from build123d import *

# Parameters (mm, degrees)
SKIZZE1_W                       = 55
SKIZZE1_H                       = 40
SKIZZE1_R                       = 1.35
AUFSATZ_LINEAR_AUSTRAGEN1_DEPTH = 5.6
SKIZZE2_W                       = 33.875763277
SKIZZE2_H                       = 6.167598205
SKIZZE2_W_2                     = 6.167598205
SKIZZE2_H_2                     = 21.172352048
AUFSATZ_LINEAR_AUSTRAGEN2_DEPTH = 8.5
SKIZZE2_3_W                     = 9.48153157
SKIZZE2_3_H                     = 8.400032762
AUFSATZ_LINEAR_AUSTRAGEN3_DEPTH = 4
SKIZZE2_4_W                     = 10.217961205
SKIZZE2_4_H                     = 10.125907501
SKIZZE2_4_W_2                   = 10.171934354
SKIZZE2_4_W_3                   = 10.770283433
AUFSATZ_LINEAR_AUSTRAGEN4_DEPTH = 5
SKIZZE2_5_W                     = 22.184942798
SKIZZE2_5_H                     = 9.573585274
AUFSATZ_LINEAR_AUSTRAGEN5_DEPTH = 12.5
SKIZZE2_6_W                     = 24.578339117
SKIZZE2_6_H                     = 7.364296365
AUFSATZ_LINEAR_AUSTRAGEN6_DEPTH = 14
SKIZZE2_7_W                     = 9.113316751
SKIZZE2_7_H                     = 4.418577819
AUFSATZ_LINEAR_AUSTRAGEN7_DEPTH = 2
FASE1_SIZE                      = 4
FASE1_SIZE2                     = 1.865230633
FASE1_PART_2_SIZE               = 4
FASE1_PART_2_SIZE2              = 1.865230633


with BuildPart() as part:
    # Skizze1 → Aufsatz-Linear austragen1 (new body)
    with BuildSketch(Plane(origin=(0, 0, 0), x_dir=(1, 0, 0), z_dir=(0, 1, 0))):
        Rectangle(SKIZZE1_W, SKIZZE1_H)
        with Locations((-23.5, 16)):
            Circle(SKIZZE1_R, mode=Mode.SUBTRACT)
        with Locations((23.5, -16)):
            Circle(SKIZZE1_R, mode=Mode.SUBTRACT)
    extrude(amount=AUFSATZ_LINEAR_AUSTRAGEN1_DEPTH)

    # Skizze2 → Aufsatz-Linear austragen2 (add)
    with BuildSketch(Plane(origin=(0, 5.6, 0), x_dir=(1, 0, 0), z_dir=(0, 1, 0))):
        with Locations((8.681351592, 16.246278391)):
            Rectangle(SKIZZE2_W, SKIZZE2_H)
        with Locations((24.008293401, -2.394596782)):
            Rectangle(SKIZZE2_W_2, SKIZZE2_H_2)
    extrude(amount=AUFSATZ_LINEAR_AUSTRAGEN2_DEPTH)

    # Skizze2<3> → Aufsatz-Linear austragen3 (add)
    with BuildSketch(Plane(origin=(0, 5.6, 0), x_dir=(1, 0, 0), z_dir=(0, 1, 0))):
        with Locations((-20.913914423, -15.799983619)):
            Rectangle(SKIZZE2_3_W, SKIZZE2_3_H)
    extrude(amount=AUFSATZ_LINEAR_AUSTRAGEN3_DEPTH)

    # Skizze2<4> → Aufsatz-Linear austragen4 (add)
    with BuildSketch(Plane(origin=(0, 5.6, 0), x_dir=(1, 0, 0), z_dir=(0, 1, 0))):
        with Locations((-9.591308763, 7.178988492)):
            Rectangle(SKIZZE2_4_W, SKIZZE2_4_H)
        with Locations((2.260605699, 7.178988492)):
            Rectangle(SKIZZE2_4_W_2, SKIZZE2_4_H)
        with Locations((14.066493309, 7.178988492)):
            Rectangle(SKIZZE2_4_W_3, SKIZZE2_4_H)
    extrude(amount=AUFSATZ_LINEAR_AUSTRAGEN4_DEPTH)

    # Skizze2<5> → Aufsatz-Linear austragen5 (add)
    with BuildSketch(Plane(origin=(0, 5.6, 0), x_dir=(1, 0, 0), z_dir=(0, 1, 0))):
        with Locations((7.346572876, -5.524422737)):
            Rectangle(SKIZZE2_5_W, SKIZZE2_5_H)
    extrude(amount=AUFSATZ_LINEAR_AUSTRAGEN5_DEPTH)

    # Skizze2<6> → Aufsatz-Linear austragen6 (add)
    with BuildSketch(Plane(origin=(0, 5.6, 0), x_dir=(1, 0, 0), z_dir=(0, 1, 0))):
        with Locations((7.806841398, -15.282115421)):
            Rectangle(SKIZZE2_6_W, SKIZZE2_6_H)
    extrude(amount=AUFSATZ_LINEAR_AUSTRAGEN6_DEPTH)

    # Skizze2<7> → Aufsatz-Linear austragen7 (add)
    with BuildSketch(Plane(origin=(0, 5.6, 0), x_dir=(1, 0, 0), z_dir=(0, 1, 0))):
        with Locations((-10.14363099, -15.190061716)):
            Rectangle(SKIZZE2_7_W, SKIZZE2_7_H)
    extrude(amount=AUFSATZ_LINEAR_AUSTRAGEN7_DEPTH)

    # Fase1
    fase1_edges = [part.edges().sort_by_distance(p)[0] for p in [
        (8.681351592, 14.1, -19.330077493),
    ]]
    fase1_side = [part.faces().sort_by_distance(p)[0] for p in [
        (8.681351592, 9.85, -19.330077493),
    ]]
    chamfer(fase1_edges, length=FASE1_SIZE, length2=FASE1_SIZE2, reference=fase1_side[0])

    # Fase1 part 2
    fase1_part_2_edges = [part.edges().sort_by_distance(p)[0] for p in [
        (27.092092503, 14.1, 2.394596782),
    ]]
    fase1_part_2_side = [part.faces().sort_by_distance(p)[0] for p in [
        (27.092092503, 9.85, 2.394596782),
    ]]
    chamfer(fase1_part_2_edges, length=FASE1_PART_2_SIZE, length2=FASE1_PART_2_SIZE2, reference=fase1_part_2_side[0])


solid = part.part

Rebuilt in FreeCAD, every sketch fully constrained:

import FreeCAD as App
import Part
import Sketcher


def edges_at(feature, points):
    """Names of the edges that pass closest to the given points."""
    edges = feature.Shape.Edges
    near = lambda p: min(range(len(edges)), key=lambda i: edges[i].distToShape(Part.Vertex(*p))[0])
    return sorted({f"Edge{near(p) + 1}" for p in points})

doc = App.newDocument("Part")
params = doc.addObject("Spreadsheet::Sheet", "Params")
for row, (alias, value) in enumerate([
    ("sketch1_diameter", "2.7 mm"),
    ("sketch1_width", "55 mm"),
    ("sketch1_height", "40 mm"),
    ("pad1_length", "5.6 mm"),
    ("pad2_length", "8.5 mm"),
    ("pad3_length", "4 mm"),
    ("pad4_length", "5 mm"),
    ("pad5_length", "12.5 mm"),
    ("pad6_length", "14 mm"),
    ("pad7_length", "2 mm"),
    ("chamfer_size", "4 mm"),
    ("chamfer_size2", "1.865231 mm"),
    ("chamfer2_size", "4 mm"),
    ("chamfer2_size2", "1.865231 mm"),
], start=1):
    params.set(f"A{row}", alias)
    params.set(f"B{row}", "=" + value)
    params.setAlias(f"B{row}", alias)

body = doc.addObject("PartDesign::Body", "Body")

# Sketch on XZ plane
sketch1 = doc.addObject("Sketcher::SketchObject", "Sketch")
body.addObject(sketch1)
sketch1.AttachmentSupport = (doc.XZ_Plane, [""])
sketch1.MapMode = "FlatFace"
sketch1.addGeometry([
    Part.LineSegment(App.Vector(-27.5, -20, 0), App.Vector(-27.5, 20, 0)),  # 0
    Part.LineSegment(App.Vector(-27.5, 20, 0), App.Vector(27.5, 20, 0)),  # 1
    Part.LineSegment(App.Vector(27.5, 20, 0), App.Vector(27.5, -20, 0)),  # 2
    Part.LineSegment(App.Vector(27.5, -20, 0), App.Vector(-27.5, -20, 0)),  # 3
    Part.Circle(App.Vector(23.5, 16, 0), App.Vector(0, 0, 1), 1.35),  # 4
    Part.Circle(App.Vector(-23.5, -16, 0), App.Vector(0, 0, 1), 1.35),  # 5
], False)
sketch1.addConstraint([
    Sketcher.Constraint("Coincident", 0, 2, 1, 1),
    Sketcher.Constraint("Coincident", 1, 2, 2, 1),
    Sketcher.Constraint("Coincident", 2, 2, 3, 1),
    Sketcher.Constraint("Coincident", 3, 2, 0, 1),
    Sketcher.Constraint("Vertical", 0),
    Sketcher.Constraint("Horizontal", 1),
    Sketcher.Constraint("Vertical", 2),
    Sketcher.Constraint("Horizontal", 3),
    Sketcher.Constraint("Equal", 4, 5),
    Sketcher.Constraint("Symmetric", 4, 3, 5, 3, -1, 1),
    Sketcher.Constraint("Symmetric", 0, 2, 2, 2, -1, 1),
    Sketcher.Constraint("Diameter", 4, 2.7),
    Sketcher.Constraint("DistanceX", 1, 1, 1, 2, 55.0),
    Sketcher.Constraint("DistanceY", 0, 1, 0, 2, 40.0),
    Sketcher.Constraint("DistanceY", -1, 1, 4, 3, 16.0),
    Sketcher.Constraint("DistanceX", 5, 3, 4, 3, 47.0),
])
sketch1.setExpression("Constraints[11]", "Params.sketch1_diameter")
sketch1.setExpression("Constraints[12]", "Params.sketch1_width")
sketch1.setExpression("Constraints[13]", "Params.sketch1_height")
pad1 = doc.addObject("PartDesign::Pad", "Pad")
body.addObject(pad1)
pad1.Profile = sketch1
pad1.setExpression("Length", "Params.pad1_length")
pad1.Reversed = True

# Sketch on XZ plane
sketch2 = doc.addObject("Sketcher::SketchObject", "Sketch001")
body.addObject(sketch2)
sketch2.AttachmentSupport = (doc.XZ_Plane, [""])
sketch2.MapMode = "FlatFace"
sketch2.AttachmentOffset = App.Placement(App.Vector(0, 0, -5.6), App.Rotation())
sketch2.addGeometry([
    Part.LineSegment(App.Vector(-8.25653, -19.330077, 0), App.Vector(-8.25653, -13.162479, 0)),  # 0
    Part.LineSegment(App.Vector(-8.25653, -13.162479, 0), App.Vector(25.619233, -13.162479, 0)),  # 1
    Part.LineSegment(App.Vector(25.619233, -13.162479, 0), App.Vector(25.619233, -19.330077, 0)),  # 2
    Part.LineSegment(App.Vector(25.619233, -19.330077, 0), App.Vector(-8.25653, -19.330077, 0)),  # 3
    Part.LineSegment(App.Vector(20.924494, -8.191579, 0), App.Vector(20.924494, 12.980773, 0)),  # 4
    Part.LineSegment(App.Vector(20.924494, 12.980773, 0), App.Vector(27.092093, 12.980773, 0)),  # 5
    Part.LineSegment(App.Vector(27.092093, 12.980773, 0), App.Vector(27.092093, -8.191579, 0)),  # 6
    Part.LineSegment(App.Vector(27.092093, -8.191579, 0), App.Vector(20.924494, -8.191579, 0)),  # 7
], False)
sketch2.addConstraint([
    Sketcher.Constraint("Coincident", 0, 2, 1, 1),
    Sketcher.Constraint("Coincident", 1, 2, 2, 1),
    Sketcher.Constraint("Coincident", 2, 2, 3, 1),
    Sketcher.Constraint("Coincident", 3, 2, 0, 1),
    Sketcher.Constraint("Coincident", 4, 2, 5, 1),
    Sketcher.Constraint("Coincident", 5, 2, 6, 1),
    Sketcher.Constraint("Coincident", 6, 2, 7, 1),
    Sketcher.Constraint("Coincident", 7, 2, 4, 1),
    Sketcher.Constraint("Vertical", 0),
    Sketcher.Constraint("Horizontal", 1),
    Sketcher.Constraint("Vertical", 2),
    Sketcher.Constraint("Horizontal", 3),
    Sketcher.Constraint("Vertical", 4),
    Sketcher.Constraint("Horizontal", 5),
    Sketcher.Constraint("Vertical", 6),
    Sketcher.Constraint("Horizontal", 7),
    Sketcher.Constraint("Equal", 7, 0),
    Sketcher.Constraint("DistanceX", 5, 1, 5, 2, 6.167598),
    Sketcher.Constraint("DistanceY", 1, 2, 6, 2, 4.9709),
    Sketcher.Constraint("DistanceX", 1, 1, 1, 2, 33.875763),
    Sketcher.Constraint("DistanceY", 4, 1, 4, 2, 21.172352),
    Sketcher.Constraint("DistanceX", 0, 2, -1, 1, 8.25653),
    Sketcher.Constraint("DistanceY", 0, 2, -1, 1, 13.162479),
    Sketcher.Constraint("DistanceX", 4, 2, 1, 2, 4.694739),
])
pad2 = doc.addObject("PartDesign::Pad", "Pad001")
body.addObject(pad2)
pad2.Profile = sketch2
pad2.setExpression("Length", "Params.pad2_length")
pad2.Reversed = True

# Sketch on XZ plane
sketch3 = doc.addObject("Sketcher::SketchObject", "Sketch002")
body.addObject(sketch3)
sketch3.AttachmentSupport = (doc.XZ_Plane, [""])
sketch3.MapMode = "FlatFace"
sketch3.AttachmentOffset = App.Placement(App.Vector(0, 0, -5.6), App.Rotation())
sketch3.addGeometry([
    Part.LineSegment(App.Vector(-25.65468, 11.599967, 0), App.Vector(-25.65468, 20, 0)),
    Part.LineSegment(App.Vector(-25.65468, 20, 0), App.Vector(-16.173149, 20, 0)),
    Part.LineSegment(App.Vector(-16.173149, 20, 0), App.Vector(-16.173149, 11.599967, 0)),
    Part.LineSegment(App.Vector(-16.173149, 11.599967, 0), App.Vector(-25.65468, 11.599967, 0)),
], False)
sketch3.addConstraint([
    Sketcher.Constraint("Coincident", 0, 2, 1, 1),
    Sketcher.Constraint("Coincident", 1, 2, 2, 1),
    Sketcher.Constraint("Coincident", 2, 2, 3, 1),
    Sketcher.Constraint("Coincident", 3, 2, 0, 1),
    Sketcher.Constraint("Vertical", 0),
    Sketcher.Constraint("Horizontal", 1),
    Sketcher.Constraint("Vertical", 2),
    Sketcher.Constraint("Horizontal", 3),
    Sketcher.Constraint("DistanceY", -1, 1, 0, 2, 20.0),
    Sketcher.Constraint("DistanceX", 1, 1, 1, 2, 9.481532),
    Sketcher.Constraint("DistanceY", 0, 1, 0, 2, 8.400033),
    Sketcher.Constraint("DistanceX", 0, 2, -1, 1, 25.65468),
])
pad3 = doc.addObject("PartDesign::Pad", "Pad002")
body.addObject(pad3)
pad3.Profile = sketch3
pad3.setExpression("Length", "Params.pad3_length")
pad3.Reversed = True

# Sketch on XZ plane
sketch4 = doc.addObject("Sketcher::SketchObject", "Sketch003")
body.addObject(sketch4)
sketch4.AttachmentSupport = (doc.XZ_Plane, [""])
sketch4.MapMode = "FlatFace"
sketch4.AttachmentOffset = App.Placement(App.Vector(0, 0, -5.6), App.Rotation())
sketch4.addGeometry([
    Part.LineSegment(App.Vector(-14.700289, -12.241942, 0), App.Vector(-14.700289, -2.116035, 0)),  # 0
    Part.LineSegment(App.Vector(-14.700289, -2.116035, 0), App.Vector(-4.482328, -2.116035, 0)),  # 1
    Part.LineSegment(App.Vector(-4.482328, -2.116035, 0), App.Vector(-4.482328, -12.241942, 0)),  # 2
    Part.LineSegment(App.Vector(-4.482328, -12.241942, 0), App.Vector(-14.700289, -12.241942, 0)),  # 3
    Part.LineSegment(App.Vector(-2.825361, -12.241942, 0), App.Vector(-2.825361, -2.116035, 0)),  # 4
    Part.LineSegment(App.Vector(-2.825361, -2.116035, 0), App.Vector(7.346573, -2.116035, 0)),  # 5
    Part.LineSegment(App.Vector(7.346573, -2.116035, 0), App.Vector(7.346573, -12.241942, 0)),  # 6
    Part.LineSegment(App.Vector(7.346573, -12.241942, 0), App.Vector(-2.825361, -12.241942, 0)),  # 7
    Part.LineSegment(App.Vector(8.681352, -12.241942, 0), App.Vector(8.681352, -2.116035, 0)),  # 8
    Part.LineSegment(App.Vector(8.681352, -2.116035, 0), App.Vector(19.451635, -2.116035, 0)),  # 9
    Part.LineSegment(App.Vector(19.451635, -2.116035, 0), App.Vector(19.451635, -12.241942, 0)),  # 10
    Part.LineSegment(App.Vector(19.451635, -12.241942, 0), App.Vector(8.681352, -12.241942, 0)),  # 11
], False)
sketch4.addConstraint([
    Sketcher.Constraint("Coincident", 0, 2, 1, 1),
    Sketcher.Constraint("Coincident", 1, 2, 2, 1),
    Sketcher.Constraint("Coincident", 2, 2, 3, 1),
    Sketcher.Constraint("Coincident", 3, 2, 0, 1),
    Sketcher.Constraint("Coincident", 4, 2, 5, 1),
    Sketcher.Constraint("Coincident", 5, 2, 6, 1),
    Sketcher.Constraint("Coincident", 6, 2, 7, 1),
    Sketcher.Constraint("Coincident", 7, 2, 4, 1),
    Sketcher.Constraint("Coincident", 8, 2, 9, 1),
    Sketcher.Constraint("Coincident", 9, 2, 10, 1),
    Sketcher.Constraint("Coincident", 10, 2, 11, 1),
    Sketcher.Constraint("Coincident", 11, 2, 8, 1),
    Sketcher.Constraint("Vertical", 0),
    Sketcher.Constraint("Horizontal", 1),
    Sketcher.Constraint("Vertical", 2),
    Sketcher.Constraint("Horizontal", 3),
    Sketcher.Constraint("Vertical", 4),
    Sketcher.Constraint("Horizontal", 5),
    Sketcher.Constraint("Vertical", 6),
    Sketcher.Constraint("Horizontal", 7),
    Sketcher.Constraint("Vertical", 8),
    Sketcher.Constraint("Horizontal", 9),
    Sketcher.Constraint("Vertical", 10),
    Sketcher.Constraint("Horizontal", 11),
    Sketcher.Constraint("Horizontal", 1, 2, 4, 2),
    Sketcher.Constraint("Horizontal", 3, 2, 6, 2),
    Sketcher.Constraint("Horizontal", 5, 2, 8, 2),
    Sketcher.Constraint("Horizontal", 7, 2, 10, 2),
    Sketcher.Constraint("DistanceX", 1, 1, 1, 2, 10.217961),
    Sketcher.Constraint("DistanceX", 1, 2, 5, 2, 11.828901),
    Sketcher.Constraint("DistanceX", 5, 1, 5, 2, 10.171934),
    Sketcher.Constraint("DistanceX", 9, 1, 9, 2, 10.770283),
    Sketcher.Constraint("DistanceY", 0, 1, 0, 2, 10.125908),
    Sketcher.Constraint("DistanceX", 0, 2, -1, 1, 14.700289),
    Sketcher.Constraint("DistanceX", -1, 1, 8, 2, 8.681352),
    Sketcher.Constraint("DistanceY", 0, 2, -1, 1, 2.116035),
])
pad4 = doc.addObject("PartDesign::Pad", "Pad003")
body.addObject(pad4)
pad4.Profile = sketch4
pad4.setExpression("Length", "Params.pad4_length")
pad4.Reversed = True

# Sketch on XZ plane
sketch5 = doc.addObject("Sketcher::SketchObject", "Sketch004")
body.addObject(sketch5)
sketch5.AttachmentSupport = (doc.XZ_Plane, [""])
sketch5.MapMode = "FlatFace"
sketch5.AttachmentOffset = App.Placement(App.Vector(0, 0, -5.6), App.Rotation())
sketch5.addGeometry([
    Part.LineSegment(App.Vector(-3.745899, 0.73763, 0), App.Vector(-3.745899, 10.311215, 0)),
    Part.LineSegment(App.Vector(-3.745899, 10.311215, 0), App.Vector(18.439044, 10.311215, 0)),
    Part.LineSegment(App.Vector(18.439044, 10.311215, 0), App.Vector(18.439044, 0.73763, 0)),
    Part.LineSegment(App.Vector(18.439044, 0.73763, 0), App.Vector(-3.745899, 0.73763, 0)),
], False)
sketch5.addConstraint([
    Sketcher.Constraint("Coincident", 0, 2, 1, 1),
    Sketcher.Constraint("Coincident", 1, 2, 2, 1),
    Sketcher.Constraint("Coincident", 2, 2, 3, 1),
    Sketcher.Constraint("Coincident", 3, 2, 0, 1),
    Sketcher.Constraint("Vertical", 0),
    Sketcher.Constraint("Horizontal", 1),
    Sketcher.Constraint("Vertical", 2),
    Sketcher.Constraint("Horizontal", 3),
    Sketcher.Constraint("DistanceX", 0, 2, -1, 1, 3.745899),
    Sketcher.Constraint("DistanceX", 1, 1, 1, 2, 22.184943),
    Sketcher.Constraint("DistanceY", 0, 1, 0, 2, 9.573585),
    Sketcher.Constraint("DistanceY", -1, 1, 2, 2, 0.73763),
])
pad5 = doc.addObject("PartDesign::Pad", "Pad004")
body.addObject(pad5)
pad5.Profile = sketch5
pad5.setExpression("Length", "Params.pad5_length")
pad5.Reversed = True

# Sketch on XZ plane
sketch6 = doc.addObject("Sketcher::SketchObject", "Sketch005")
body.addObject(sketch6)
sketch6.AttachmentSupport = (doc.XZ_Plane, [""])
sketch6.MapMode = "FlatFace"
sketch6.AttachmentOffset = App.Placement(App.Vector(0, 0, -5.6), App.Rotation())
sketch6.addGeometry([
    Part.LineSegment(App.Vector(-4.482328, 11.599967, 0), App.Vector(-4.482328, 18.964264, 0)),
    Part.LineSegment(App.Vector(-4.482328, 18.964264, 0), App.Vector(20.096011, 18.964264, 0)),
    Part.LineSegment(App.Vector(20.096011, 18.964264, 0), App.Vector(20.096011, 11.599967, 0)),
    Part.LineSegment(App.Vector(20.096011, 11.599967, 0), App.Vector(-4.482328, 11.599967, 0)),
], False)
sketch6.addConstraint([
    Sketcher.Constraint("Coincident", 0, 2, 1, 1),
    Sketcher.Constraint("Coincident", 1, 2, 2, 1),
    Sketcher.Constraint("Coincident", 2, 2, 3, 1),
    Sketcher.Constraint("Coincident", 3, 2, 0, 1),
    Sketcher.Constraint("Vertical", 0),
    Sketcher.Constraint("Horizontal", 1),
    Sketcher.Constraint("Vertical", 2),
    Sketcher.Constraint("Horizontal", 3),
    Sketcher.Constraint("DistanceX", 1, 1, 1, 2, 24.578339),
    Sketcher.Constraint("DistanceY", 0, 1, 0, 2, 7.364296),
    Sketcher.Constraint("DistanceX", 0, 2, -1, 1, 4.482328),
    Sketcher.Constraint("DistanceY", -1, 1, 0, 2, 18.964264),
])
pad6 = doc.addObject("PartDesign::Pad", "Pad005")
body.addObject(pad6)
pad6.Profile = sketch6
pad6.setExpression("Length", "Params.pad6_length")
pad6.Reversed = True

# Sketch on XZ plane
sketch7 = doc.addObject("Sketcher::SketchObject", "Sketch006")
body.addObject(sketch7)
sketch7.AttachmentSupport = (doc.XZ_Plane, [""])
sketch7.MapMode = "FlatFace"
sketch7.AttachmentOffset = App.Placement(App.Vector(0, 0, -5.6), App.Rotation())
sketch7.addGeometry([
    Part.LineSegment(App.Vector(-14.700289, 12.980773, 0), App.Vector(-14.700289, 17.399351, 0)),
    Part.LineSegment(App.Vector(-14.700289, 17.399351, 0), App.Vector(-5.586973, 17.399351, 0)),
    Part.LineSegment(App.Vector(-5.586973, 17.399351, 0), App.Vector(-5.586973, 12.980773, 0)),
    Part.LineSegment(App.Vector(-5.586973, 12.980773, 0), App.Vector(-14.700289, 12.980773, 0)),
], False)
sketch7.addConstraint([
    Sketcher.Constraint("Coincident", 0, 2, 1, 1),
    Sketcher.Constraint("Coincident", 1, 2, 2, 1),
    Sketcher.Constraint("Coincident", 2, 2, 3, 1),
    Sketcher.Constraint("Coincident", 3, 2, 0, 1),
    Sketcher.Constraint("Vertical", 0),
    Sketcher.Constraint("Horizontal", 1),
    Sketcher.Constraint("Vertical", 2),
    Sketcher.Constraint("Horizontal", 3),
    Sketcher.Constraint("DistanceX", 1, 1, 1, 2, 9.113317),
    Sketcher.Constraint("DistanceY", 0, 1, 0, 2, 4.418578),
    Sketcher.Constraint("DistanceX", 0, 2, -1, 1, 14.700289),
    Sketcher.Constraint("DistanceY", -1, 1, 0, 2, 17.399351),
])
pad7 = doc.addObject("PartDesign::Pad", "Pad006")
body.addObject(pad7)
pad7.Profile = sketch7
pad7.setExpression("Length", "Params.pad7_length")
pad7.Reversed = True
doc.recompute()

chamfer = doc.addObject("PartDesign::Chamfer", "Chamfer")
body.addObject(chamfer)
chamfer.Base = (pad7, edges_at(pad7, [(8.681, 14.1, -19.33)]))
chamfer.ChamferType = "Two distances"
chamfer.setExpression("Size", "Params.chamfer_size")
chamfer.setExpression("Size2", "Params.chamfer_size2")
doc.recompute()

chamfer2 = doc.addObject("PartDesign::Chamfer", "Chamfer001")
body.addObject(chamfer2)
chamfer2.Base = (chamfer, edges_at(chamfer, [(27.092, 14.1, 2.395)]))
chamfer2.ChamferType = "Two distances"
chamfer2.setExpression("Size", "Params.chamfer2_size")
chamfer2.setExpression("Size2", "Params.chamfer2_size2")

doc.recompute()
